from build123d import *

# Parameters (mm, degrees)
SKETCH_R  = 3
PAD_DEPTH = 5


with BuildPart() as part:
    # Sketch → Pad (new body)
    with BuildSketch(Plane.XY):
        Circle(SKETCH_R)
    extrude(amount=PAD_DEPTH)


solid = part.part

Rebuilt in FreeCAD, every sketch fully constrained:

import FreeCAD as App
import Part
import Sketcher
from FreeCAD import Vector
Q = App.Units.Quantity

doc = App.newDocument("Part")
body = doc.addObject("PartDesign::Body", "Body")

# Sketch on XY plane
sketch1 = doc.addObject("Sketcher::SketchObject", "Sketch")
body.addObject(sketch1)
sketch1.AttachmentSupport = (doc.XY_Plane, [""])
sketch1.MapMode = "FlatFace"
sketch1.addGeometry(Part.Circle(Vector(0, 0, 0), Vector(0, 0, 1), 3), False)
sketch1.addConstraint(Sketcher.Constraint("Coincident", 0, 3, -1, 1))
sketch1.addConstraint(Sketcher.Constraint("Diameter", 0, Q("6 mm")))
pad1 = doc.addObject("PartDesign::Pad", "Pad")
body.addObject(pad1)
pad1.Profile = sketch1
pad1.Length = 5

doc.recompute()
